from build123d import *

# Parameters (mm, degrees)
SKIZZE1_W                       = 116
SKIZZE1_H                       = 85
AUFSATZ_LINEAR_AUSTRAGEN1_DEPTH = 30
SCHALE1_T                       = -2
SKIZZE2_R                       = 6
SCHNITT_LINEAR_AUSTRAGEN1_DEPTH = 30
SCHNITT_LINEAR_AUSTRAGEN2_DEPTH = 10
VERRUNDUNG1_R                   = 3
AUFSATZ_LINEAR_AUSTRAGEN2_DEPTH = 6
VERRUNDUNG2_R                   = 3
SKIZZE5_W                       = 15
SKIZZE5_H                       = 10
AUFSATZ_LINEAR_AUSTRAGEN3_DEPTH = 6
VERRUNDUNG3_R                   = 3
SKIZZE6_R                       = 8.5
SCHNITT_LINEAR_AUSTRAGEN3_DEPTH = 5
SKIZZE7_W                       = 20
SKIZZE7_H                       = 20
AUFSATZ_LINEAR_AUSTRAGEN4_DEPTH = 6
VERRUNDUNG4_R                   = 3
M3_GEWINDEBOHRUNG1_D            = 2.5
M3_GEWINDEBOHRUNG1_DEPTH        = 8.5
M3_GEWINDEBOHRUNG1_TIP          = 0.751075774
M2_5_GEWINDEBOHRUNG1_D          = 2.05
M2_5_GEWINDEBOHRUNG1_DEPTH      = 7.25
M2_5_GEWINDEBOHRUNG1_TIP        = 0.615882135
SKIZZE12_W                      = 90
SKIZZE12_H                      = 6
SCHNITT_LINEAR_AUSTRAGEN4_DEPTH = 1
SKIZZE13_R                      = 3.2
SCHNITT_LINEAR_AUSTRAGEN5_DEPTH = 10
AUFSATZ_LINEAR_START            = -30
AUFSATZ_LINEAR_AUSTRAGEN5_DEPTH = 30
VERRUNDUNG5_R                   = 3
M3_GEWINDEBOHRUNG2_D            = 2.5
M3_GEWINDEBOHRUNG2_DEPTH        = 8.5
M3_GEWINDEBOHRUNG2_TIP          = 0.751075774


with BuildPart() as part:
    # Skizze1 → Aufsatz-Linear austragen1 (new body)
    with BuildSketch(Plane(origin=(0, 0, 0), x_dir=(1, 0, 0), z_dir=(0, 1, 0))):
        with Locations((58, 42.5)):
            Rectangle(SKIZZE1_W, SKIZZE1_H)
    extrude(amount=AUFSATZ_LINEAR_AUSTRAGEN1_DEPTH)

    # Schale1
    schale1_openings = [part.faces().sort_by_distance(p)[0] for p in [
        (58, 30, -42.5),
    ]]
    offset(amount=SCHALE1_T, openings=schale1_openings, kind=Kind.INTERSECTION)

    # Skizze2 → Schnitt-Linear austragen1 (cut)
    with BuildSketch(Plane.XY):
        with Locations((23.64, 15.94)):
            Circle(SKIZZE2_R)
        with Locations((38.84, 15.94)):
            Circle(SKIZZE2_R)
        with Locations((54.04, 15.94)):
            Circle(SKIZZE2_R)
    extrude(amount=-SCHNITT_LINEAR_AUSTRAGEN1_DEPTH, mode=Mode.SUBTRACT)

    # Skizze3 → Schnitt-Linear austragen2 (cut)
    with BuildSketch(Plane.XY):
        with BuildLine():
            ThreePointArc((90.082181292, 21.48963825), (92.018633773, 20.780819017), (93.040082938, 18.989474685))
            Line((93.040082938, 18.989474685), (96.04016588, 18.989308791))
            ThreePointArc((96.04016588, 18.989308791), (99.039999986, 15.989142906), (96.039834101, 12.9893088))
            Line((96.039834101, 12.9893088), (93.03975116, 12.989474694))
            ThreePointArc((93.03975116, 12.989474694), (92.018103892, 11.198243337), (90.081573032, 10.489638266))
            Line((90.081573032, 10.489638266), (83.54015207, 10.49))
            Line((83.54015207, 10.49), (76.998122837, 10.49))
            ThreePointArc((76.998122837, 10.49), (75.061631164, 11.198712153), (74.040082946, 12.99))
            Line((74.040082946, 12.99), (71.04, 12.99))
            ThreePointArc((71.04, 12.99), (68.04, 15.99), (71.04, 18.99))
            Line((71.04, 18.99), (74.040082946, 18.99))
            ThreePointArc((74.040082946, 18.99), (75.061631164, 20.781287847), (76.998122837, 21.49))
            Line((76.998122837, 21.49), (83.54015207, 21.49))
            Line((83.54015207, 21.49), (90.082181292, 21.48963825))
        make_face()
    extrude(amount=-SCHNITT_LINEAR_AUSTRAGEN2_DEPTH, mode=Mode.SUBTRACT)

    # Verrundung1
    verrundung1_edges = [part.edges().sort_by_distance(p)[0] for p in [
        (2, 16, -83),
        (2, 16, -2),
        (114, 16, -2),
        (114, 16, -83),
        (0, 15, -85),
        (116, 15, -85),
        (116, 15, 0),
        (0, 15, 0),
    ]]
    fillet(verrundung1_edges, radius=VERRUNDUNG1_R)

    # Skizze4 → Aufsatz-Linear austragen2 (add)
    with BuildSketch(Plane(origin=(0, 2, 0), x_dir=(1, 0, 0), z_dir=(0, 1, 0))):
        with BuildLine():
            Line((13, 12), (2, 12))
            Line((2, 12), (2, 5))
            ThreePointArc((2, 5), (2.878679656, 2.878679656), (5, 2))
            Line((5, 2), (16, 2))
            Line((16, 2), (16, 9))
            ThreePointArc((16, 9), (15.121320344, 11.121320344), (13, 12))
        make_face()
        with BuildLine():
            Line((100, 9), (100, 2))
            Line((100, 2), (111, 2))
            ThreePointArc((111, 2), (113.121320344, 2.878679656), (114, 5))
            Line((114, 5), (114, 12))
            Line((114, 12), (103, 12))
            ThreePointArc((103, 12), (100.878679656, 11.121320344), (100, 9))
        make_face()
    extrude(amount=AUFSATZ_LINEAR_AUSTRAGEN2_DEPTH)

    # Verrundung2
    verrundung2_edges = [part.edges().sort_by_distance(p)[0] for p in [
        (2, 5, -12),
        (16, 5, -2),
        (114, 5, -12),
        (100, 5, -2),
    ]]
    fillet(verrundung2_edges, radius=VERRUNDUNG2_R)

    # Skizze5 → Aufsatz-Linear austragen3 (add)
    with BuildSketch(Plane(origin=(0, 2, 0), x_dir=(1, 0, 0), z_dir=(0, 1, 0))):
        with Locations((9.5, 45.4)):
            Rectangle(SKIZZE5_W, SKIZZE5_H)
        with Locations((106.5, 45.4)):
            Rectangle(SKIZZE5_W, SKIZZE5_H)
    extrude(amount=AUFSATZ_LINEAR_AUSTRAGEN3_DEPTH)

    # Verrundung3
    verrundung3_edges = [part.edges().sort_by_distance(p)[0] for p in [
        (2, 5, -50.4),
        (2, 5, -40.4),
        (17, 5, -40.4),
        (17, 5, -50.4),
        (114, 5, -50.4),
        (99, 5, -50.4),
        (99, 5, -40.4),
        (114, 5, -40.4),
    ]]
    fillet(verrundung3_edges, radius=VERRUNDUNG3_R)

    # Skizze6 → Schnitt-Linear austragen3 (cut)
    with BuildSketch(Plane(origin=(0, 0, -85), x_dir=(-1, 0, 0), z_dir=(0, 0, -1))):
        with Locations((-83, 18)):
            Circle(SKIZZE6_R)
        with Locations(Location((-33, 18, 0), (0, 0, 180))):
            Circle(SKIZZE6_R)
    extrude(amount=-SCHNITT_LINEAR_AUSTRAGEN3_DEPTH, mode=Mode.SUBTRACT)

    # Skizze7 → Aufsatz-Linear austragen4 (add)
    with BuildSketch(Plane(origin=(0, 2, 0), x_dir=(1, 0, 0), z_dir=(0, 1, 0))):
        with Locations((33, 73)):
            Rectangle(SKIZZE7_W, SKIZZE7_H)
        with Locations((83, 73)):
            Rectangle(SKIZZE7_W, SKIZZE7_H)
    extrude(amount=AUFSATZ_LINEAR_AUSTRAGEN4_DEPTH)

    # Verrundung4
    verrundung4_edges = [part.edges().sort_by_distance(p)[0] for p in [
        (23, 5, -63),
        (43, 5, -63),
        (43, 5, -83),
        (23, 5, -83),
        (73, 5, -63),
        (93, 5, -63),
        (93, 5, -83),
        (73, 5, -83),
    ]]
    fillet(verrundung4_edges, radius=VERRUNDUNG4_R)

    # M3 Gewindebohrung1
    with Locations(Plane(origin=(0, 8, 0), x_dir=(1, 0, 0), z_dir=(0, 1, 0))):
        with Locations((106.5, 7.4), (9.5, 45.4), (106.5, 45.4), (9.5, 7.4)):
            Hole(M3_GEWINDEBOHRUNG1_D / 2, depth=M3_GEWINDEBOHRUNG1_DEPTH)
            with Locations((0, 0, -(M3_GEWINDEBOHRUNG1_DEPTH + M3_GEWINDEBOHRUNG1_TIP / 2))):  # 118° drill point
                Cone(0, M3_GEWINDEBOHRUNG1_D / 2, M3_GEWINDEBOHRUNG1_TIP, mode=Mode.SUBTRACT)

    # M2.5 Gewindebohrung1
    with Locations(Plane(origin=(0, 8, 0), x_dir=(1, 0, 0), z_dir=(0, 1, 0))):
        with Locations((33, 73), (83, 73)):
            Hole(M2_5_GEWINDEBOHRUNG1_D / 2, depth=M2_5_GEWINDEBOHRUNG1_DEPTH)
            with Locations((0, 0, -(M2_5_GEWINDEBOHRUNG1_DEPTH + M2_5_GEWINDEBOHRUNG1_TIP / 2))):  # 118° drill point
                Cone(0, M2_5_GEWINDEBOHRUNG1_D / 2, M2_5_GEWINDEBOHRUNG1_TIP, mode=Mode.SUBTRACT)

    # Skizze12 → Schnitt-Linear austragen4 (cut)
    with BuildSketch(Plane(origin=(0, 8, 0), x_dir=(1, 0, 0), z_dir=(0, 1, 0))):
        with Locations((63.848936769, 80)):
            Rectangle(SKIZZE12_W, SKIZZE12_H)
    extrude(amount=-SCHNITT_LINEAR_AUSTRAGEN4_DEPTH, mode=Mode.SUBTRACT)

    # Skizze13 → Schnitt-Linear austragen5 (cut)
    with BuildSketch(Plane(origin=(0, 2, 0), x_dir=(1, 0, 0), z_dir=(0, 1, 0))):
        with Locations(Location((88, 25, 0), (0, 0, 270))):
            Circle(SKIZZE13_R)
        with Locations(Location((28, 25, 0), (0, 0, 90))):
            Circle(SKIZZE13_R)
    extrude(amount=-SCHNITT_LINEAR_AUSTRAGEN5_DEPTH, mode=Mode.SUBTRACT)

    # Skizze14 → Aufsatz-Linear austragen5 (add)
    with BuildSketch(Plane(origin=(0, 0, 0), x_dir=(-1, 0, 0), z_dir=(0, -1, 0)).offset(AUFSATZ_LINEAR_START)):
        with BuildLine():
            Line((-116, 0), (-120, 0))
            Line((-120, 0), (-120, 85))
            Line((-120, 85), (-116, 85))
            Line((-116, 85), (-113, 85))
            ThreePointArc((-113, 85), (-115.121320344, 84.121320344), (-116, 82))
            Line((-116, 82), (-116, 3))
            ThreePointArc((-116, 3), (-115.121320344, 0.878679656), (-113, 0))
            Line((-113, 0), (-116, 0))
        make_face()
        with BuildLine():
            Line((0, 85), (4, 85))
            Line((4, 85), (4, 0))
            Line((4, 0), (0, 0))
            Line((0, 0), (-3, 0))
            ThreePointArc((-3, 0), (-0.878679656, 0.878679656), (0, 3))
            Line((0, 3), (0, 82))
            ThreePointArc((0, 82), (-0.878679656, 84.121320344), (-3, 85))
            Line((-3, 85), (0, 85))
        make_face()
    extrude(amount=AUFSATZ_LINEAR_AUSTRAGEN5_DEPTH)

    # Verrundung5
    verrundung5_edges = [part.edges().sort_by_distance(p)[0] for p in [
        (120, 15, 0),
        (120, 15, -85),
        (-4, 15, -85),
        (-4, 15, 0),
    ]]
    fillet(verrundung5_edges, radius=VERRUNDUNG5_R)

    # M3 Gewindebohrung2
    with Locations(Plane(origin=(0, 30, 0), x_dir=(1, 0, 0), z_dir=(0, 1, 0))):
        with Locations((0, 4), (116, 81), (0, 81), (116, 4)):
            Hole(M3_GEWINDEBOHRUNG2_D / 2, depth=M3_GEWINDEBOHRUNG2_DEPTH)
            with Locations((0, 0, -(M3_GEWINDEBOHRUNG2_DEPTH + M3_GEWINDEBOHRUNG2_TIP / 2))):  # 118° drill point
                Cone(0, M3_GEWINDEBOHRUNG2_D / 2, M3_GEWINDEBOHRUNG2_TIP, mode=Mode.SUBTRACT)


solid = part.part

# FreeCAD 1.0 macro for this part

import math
import FreeCAD as App
import Part
import Sketcher
Q = App.Units.Quantity


def edges_at(feature, points):
    """Names of the edges that pass closest to the given points."""
    edges = feature.Shape.Edges
    near = lambda p: min(range(len(edges)), key=lambda i: edges[i].distToShape(Part.Vertex(*p))[0])
    return sorted({f"Edge{near(p) + 1}" for p in points})


def faces_at(feature, points):
    """Names of the faces that lie closest to the given points."""
    faces = feature.Shape.Faces
    near = lambda p: min(range(len(faces)), key=lambda i: faces[i].distToShape(Part.Vertex(*p))[0])
    return sorted({f"Face{near(p) + 1}" for p in points})


def add_polygon(sketch, points):
    """Adds a closed chain of lines whose ends are joined by coincident constraints."""
    first, n = sketch.GeometryCount, len(points)
    for a, b in zip(points, points[1:] + points[:1]):
        sketch.addGeometry(Part.LineSegment(App.Vector(*a, 0), App.Vector(*b, 0)), False)
    for i in range(n):
        sketch.addConstraint(Sketcher.Constraint("Coincident", first + i, 2, first + (i + 1) % n, 1))

doc = App.newDocument("Part")
body = doc.addObject("PartDesign::Body", "Body")

sketch1 = body.newObject("Sketcher::SketchObject", "Sketch")
sketch1.AttachmentSupport = (doc.getObject("XZ_Plane"), [""])
sketch1.MapMode = "FlatFace"
add_polygon(sketch1, [(0, -85), (0, 0), (116, 0), (116, -85)])
sketch1.addConstraint([
    Sketcher.Constraint("Vertical", 0),
    Sketcher.Constraint("Horizontal", 1),
    Sketcher.Constraint("Vertical", 2),
    Sketcher.Constraint("Horizontal", 3),
    Sketcher.Constraint("Coincident", 0, 2, -1, 1),
    Sketcher.Constraint("DistanceX", 1, 1, 1, 2, Q("116 mm")),
    Sketcher.Constraint("DistanceY", 0, 1, 0, 2, Q("85 mm")),
])
pad1 = body.newObject("PartDesign::Pad", "Pad")
pad1.Profile = sketch1
pad1.Length = 30
pad1.Reversed = True
doc.recompute()

thickness = body.newObject("PartDesign::Thickness", "Thickness")
thickness.Base = (pad1, faces_at(pad1, [(58, 30, -42.5)]))
thickness.Value = 2
thickness.Reversed = True
thickness.Join = "Intersection"

sketch2 = body.newObject("Sketcher::SketchObject", "Sketch001")
sketch2.AttachmentSupport = (doc.getObject("XY_Plane"), [""])
sketch2.MapMode = "FlatFace"
sketch2.addGeometry([
    Part.Circle(App.Vector(24, 16, 0), App.Vector(0, 0, 1), 6),
    Part.Circle(App.Vector(39, 16, 0), App.Vector(0, 0, 1), 6),
    Part.Circle(App.Vector(54, 16, 0), App.Vector(0, 0, 1), 6),
], False)
sketch2.addConstraint([
    Sketcher.Constraint("Equal", 0, 1),
    Sketcher.Constraint("Equal", 1, 2),
    Sketcher.Constraint("Horizontal", 0, 3, 1, 3),
    Sketcher.Constraint("Horizontal", 1, 3, 2, 3),
    Sketcher.Constraint("Diameter", 0, Q("12 mm")),
    Sketcher.Constraint("DistanceX", 0, 3, 1, 3, Q("15.2 mm")),
    Sketcher.Constraint("DistanceX", 1, 3, 2, 3, Q("15.2 mm")),
    Sketcher.Constraint("DistanceX", -1, 1, 0, 3, Q("23.64 mm")),
    Sketcher.Constraint("DistanceY", -1, 1, 0, 3, Q("15.94 mm")),
])
pocket1 = body.newObject("PartDesign::Pocket", "Pocket")
pocket1.Profile = sketch2
pocket1.Length = 30

sketch3 = body.newObject("Sketcher::SketchObject", "Sketch002")
sketch3.AttachmentSupport = (doc.getObject("XY_Plane"), [""])
sketch3.MapMode = "FlatFace"
sketch3.addGeometry([
    Part.ArcOfCircle(Part.Circle(App.Vector(90.1, 18.5, 0), App.Vector(0, 0, 1), 3), math.radians(10), math.radians(90)),
    Part.LineSegment(App.Vector(90.1, 21.5, 0), App.Vector(83.5, 21.5, 0)),
    Part.LineSegment(App.Vector(83.5, 21.5, 0), App.Vector(77, 21.5, 0)),
    Part.ArcOfCircle(Part.Circle(App.Vector(77, 18.5, 0), App.Vector(0, 0, 1), 3), math.radians(90), math.radians(170)),
    Part.LineSegment(App.Vector(74, 19, 0), App.Vector(71, 19, 0)),
    Part.ArcOfCircle(Part.Circle(App.Vector(71, 16, 0), App.Vector(0, 0, 1), 3), math.radians(90), math.radians(270)),
    Part.LineSegment(App.Vector(71, 13, 0), App.Vector(74, 13, 0)),
    Part.ArcOfCircle(Part.Circle(App.Vector(77, 13.5, 0), App.Vector(0, 0, 1), 3), math.radians(-170), math.radians(-90)),
    Part.LineSegment(App.Vector(77, 10.5, 0), App.Vector(83.5, 10.5, 0)),
    Part.LineSegment(App.Vector(83.5, 10.5, 0), App.Vector(90.1, 10.5, 0)),
    Part.ArcOfCircle(Part.Circle(App.Vector(90.1, 13.5, 0), App.Vector(0, 0, 1), 3), math.radians(-90), math.radians(-10)),
    Part.LineSegment(App.Vector(93, 13, 0), App.Vector(96, 13, 0)),
    Part.ArcOfCircle(Part.Circle(App.Vector(96, 16, 0), App.Vector(0, 0, 1), 3), math.radians(-90), math.radians(90)),
    Part.LineSegment(App.Vector(96, 19, 0), App.Vector(93, 19, 0)),
], False)
sketch3.addConstraint([
    Sketcher.Constraint("Tangent", 0, 2, 1, 1),
    Sketcher.Constraint("Coincident", 1, 2, 2, 1),
    Sketcher.Constraint("Tangent", 2, 2, 3, 1),
    Sketcher.Constraint("Coincident", 3, 2, 4, 1),
    Sketcher.Constraint("Tangent", 4, 2, 5, 1),
    Sketcher.Constraint("Tangent", 5, 2, 6, 1),
    Sketcher.Constraint("Coincident", 6, 2, 7, 1),
    Sketcher.Constraint("Tangent", 7, 2, 8, 1),
    Sketcher.Constraint("Coincident", 8, 2, 9, 1),
    Sketcher.Constraint("Tangent", 9, 2, 10, 1),
    Sketcher.Constraint("Coincident", 10, 2, 11, 1),
    Sketcher.Constraint("Tangent", 11, 2, 12, 1),
    Sketcher.Constraint("Tangent", 12, 2, 13, 1),
    Sketcher.Constraint("Coincident", 13, 2, 0, 1),
    Sketcher.Constraint("Horizontal", 2),
    Sketcher.Constraint("Horizontal", 4),
    Sketcher.Constraint("Horizontal", 6),
    Sketcher.Constraint("Horizontal", 8),
    Sketcher.Constraint("Equal", 0, 3),
    Sketcher.Constraint("Equal", 3, 5),
    Sketcher.Constraint("Equal", 5, 7),
    Sketcher.Constraint("Equal", 7, 10),
    Sketcher.Constraint("Equal", 10, 12),
    Sketcher.Constraint("Parallel", 1, 9),
    Sketcher.Constraint("Parallel", 9, 11),
    Sketcher.Constraint("Parallel", 11, 13),
    Sketcher.Constraint("Vertical", 3, 3, 7, 3),
    Sketcher.Constraint("Vertical", 3, 2, 6, 2),
    Sketcher.Constraint("Vertical", 1, 2, 8, 2),
    Sketcher.Constraint("Equal", 11, 13),
    Sketcher.Constraint("Radius", 0, Q("3 mm")),
    Sketcher.Constraint("DistanceY", 7, 3, 3, 3, Q("5 mm")),
    Sketcher.Constraint("DistanceX", 5, 3, 12, 3, Q("25 mm")),
    Sketcher.Constraint("DistanceY", -1, 1, 3, 3, Q("18.49 mm")),
    Sketcher.Constraint("DistanceX", -1, 1, 5, 3, Q("71.04 mm")),
    Sketcher.Constraint("DistanceX", 2, 2, 2, 1, Q("6.542029 mm")),
    Sketcher.Constraint("DistanceX", 0, 2, 13, 2, Q("2.957902 mm")),
    Sketcher.Constraint("Distance", 1, Q("6.542029 mm")),
    Sketcher.Constraint("Distance", 9, Q("6.541421 mm")),
    Sketcher.Constraint("DistanceX", 4, 2, 4, 1, Q("3.000083 mm")),
])
pocket2 = body.newObject("PartDesign::Pocket", "Pocket001")
pocket2.Profile = sketch3
pocket2.Length = 10
doc.recompute()

fillet = body.newObject("PartDesign::Fillet", "Fillet")
fillet.Base = (pocket2, edges_at(pocket2, [
    (2, 16, -83),
    (2, 16, -2),
    (114, 16, -2),
    (114, 16, -83),
    (0, 15, -85),
    (116, 15, -85),
    (116, 15, 0),
    (0, 15, 0),
]))
fillet.Radius = 3

sketch4 = body.newObject("Sketcher::SketchObject", "Sketch003")
sketch4.AttachmentSupport = (doc.getObject("XZ_Plane"), [""])
sketch4.MapMode = "FlatFace"
sketch4.AttachmentOffset = App.Placement(App.Vector(0, 0, -2), App.Rotation())
sketch4.addGeometry([
    Part.LineSegment(App.Vector(13, -12, 0), App.Vector(2, -12, 0)),
    Part.LineSegment(App.Vector(2, -12, 0), App.Vector(2, -5, 0)),
    Part.ArcOfCircle(Part.Circle(App.Vector(5, -5, 0), App.Vector(0, 0, 1), 3), math.radians(90), math.radians(180)),
    Part.LineSegment(App.Vector(5, -2, 0), App.Vector(16, -2, 0)),
    Part.LineSegment(App.Vector(16, -2, 0), App.Vector(16, -9, 0)),
    Part.ArcOfCircle(Part.Circle(App.Vector(13, -9, 0), App.Vector(0, 0, 1), 3), math.radians(-90), math.radians(0)),
    Part.LineSegment(App.Vector(100, -9, 0), App.Vector(100, -2, 0)),
    Part.LineSegment(App.Vector(100, -2, 0), App.Vector(111, -2, 0)),
    Part.ArcOfCircle(Part.Circle(App.Vector(111, -5, 0), App.Vector(0, 0, 1), 3), math.radians(0), math.radians(90)),
    Part.LineSegment(App.Vector(114, -5, 0), App.Vector(114, -12, 0)),
    Part.LineSegment(App.Vector(114, -12, 0), App.Vector(103, -12, 0)),
    Part.ArcOfCircle(Part.Circle(App.Vector(103, -9, 0), App.Vector(0, 0, 1), 3), math.radians(180), math.radians(270)),
], False)
sketch4.addConstraint([
    Sketcher.Constraint("Coincident", 0, 2, 1, 1),
    Sketcher.Constraint("Tangent", 1, 2, 2, 2),
    Sketcher.Constraint("Tangent", 2, 1, 3, 1),
    Sketcher.Constraint("Coincident", 3, 2, 4, 1),
    Sketcher.Constraint("Tangent", 4, 2, 5, 2),
    Sketcher.Constraint("Tangent", 5, 1, 0, 1),
    Sketcher.Constraint("Coincident", 6, 2, 7, 1),
    Sketcher.Constraint("Tangent", 7, 2, 8, 2),
    Sketcher.Constraint("Tangent", 8, 1, 9, 1),
    Sketcher.Constraint("Coincident", 9, 2, 10, 1),
    Sketcher.Constraint("Tangent", 10, 2, 11, 2),
    Sketcher.Constraint("Tangent", 11, 1, 6, 1),
    Sketcher.Constraint("Horizontal", 0),
    Sketcher.Constraint("Vertical", 1),
    Sketcher.Constraint("Horizontal", 3),
    Sketcher.Constraint("Vertical", 4),
    Sketcher.Constraint("Vertical", 6),
    Sketcher.Constraint("Horizontal", 7),
    Sketcher.Constraint("Vertical", 9),
    Sketcher.Constraint("Horizontal", 10),
    Sketcher.Constraint("Equal", 2, 5),
    Sketcher.Constraint("Equal", 5, 8),
    Sketcher.Constraint("Equal", 8, 11),
    Sketcher.Constraint("Horizontal", 2, 3, 8, 3),
    Sketcher.Constraint("Horizontal", 5, 3, 11, 3),
    Sketcher.Constraint("Equal", 3, 7),
    Sketcher.Constraint("Radius", 2, Q("3 mm")),
    Sketcher.Constraint("DistanceX", 0, 2, 0, 1, Q("11 mm")),
    Sketcher.Constraint("DistanceY", 1, 1, 1, 2, Q("7 mm")),
    Sketcher.Constraint("DistanceX", -1, 1, 2, 3, Q("5 mm")),
    Sketcher.Constraint("DistanceY", 2, 3, -1, 1, Q("5 mm")),
    Sketcher.Constraint("DistanceX", -1, 1, 8, 3, Q("111 mm")),
])
pad2 = body.newObject("PartDesign::Pad", "Pad001")
pad2.Profile = sketch4
pad2.Length = 6
pad2.Reversed = True
doc.recompute()

fillet2 = body.newObject("PartDesign::Fillet", "Fillet001")
fillet2.Base = (pad2, edges_at(pad2, [
    (2, 5, -12),
    (16, 5, -2),
    (114, 5, -12),
    (100, 5, -2),
]))
fillet2.Radius = 3

sketch5 = body.newObject("Sketcher::SketchObject", "Sketch004")
sketch5.AttachmentSupport = (doc.getObject("XZ_Plane"), [""])
sketch5.MapMode = "FlatFace"
sketch5.AttachmentOffset = App.Placement(App.Vector(0, 0, -2), App.Rotation())
add_polygon(sketch5, [(2, -50), (2, -40), (17, -40), (17, -50)])
add_polygon(sketch5, [(99, -50), (99, -40), (114, -40), (114, -50)])
sketch5.addConstraint([
    Sketcher.Constraint("Vertical", 0),
    Sketcher.Constraint("Horizontal", 1),
    Sketcher.Constraint("Vertical", 2),
    Sketcher.Constraint("Horizontal", 3),
    Sketcher.Constraint("Vertical", 4),
    Sketcher.Constraint("Horizontal", 5),
    Sketcher.Constraint("Vertical", 6),
    Sketcher.Constraint("Horizontal", 7),
    Sketcher.Constraint("Horizontal", 1, 2, 4, 2),
    Sketcher.Constraint("Horizontal", 3, 2, 6, 2),
    Sketcher.Constraint("Equal", 3, 5),
    Sketcher.Constraint("DistanceX", 1, 1, 1, 2, Q("15 mm")),
    Sketcher.Constraint("DistanceY", 0, 1, 0, 2, Q("10 mm")),
    Sketcher.Constraint("DistanceX", -1, 1, 0, 2, Q("2 mm")),
    Sketcher.Constraint("DistanceX", -1, 1, 4, 2, Q("99 mm")),
    Sketcher.Constraint("DistanceY", 0, 2, -1, 1, Q("40.4 mm")),
])
pad3 = body.newObject("PartDesign::Pad", "Pad002")
pad3.Profile = sketch5
pad3.Length = 6
pad3.Reversed = True
doc.recompute()

fillet3 = body.newObject("PartDesign::Fillet", "Fillet002")
fillet3.Base = (pad3, edges_at(pad3, [
    (2, 5, -50.4),
    (2, 5, -40.4),
    (17, 5, -40.4),
    (17, 5, -50.4),
    (114, 5, -50.4),
    (99, 5, -50.4),
    (99, 5, -40.4),
    (114, 5, -40.4),
]))
fillet3.Radius = 3

sketch6 = body.newObject("Sketcher::SketchObject", "Sketch005")
sketch6.AttachmentSupport = (doc.getObject("XY_Plane"), [""])
sketch6.MapMode = "FlatFace"
sketch6.AttachmentOffset = App.Placement(App.Vector(0, 0, -85), App.Rotation())
sketch6.addGeometry([
    Part.Circle(App.Vector(83, 18, 0), App.Vector(0, 0, 1), 8),
    Part.Circle(App.Vector(33, 18, 0), App.Vector(0, 0, 1), 8),
], False)
sketch6.addConstraint([
    Sketcher.Constraint("Equal", 0, 1),
    Sketcher.Constraint("Horizontal", 0, 3, 1, 3),
    Sketcher.Constraint("Diameter", 0, Q("17 mm")),
    Sketcher.Constraint("DistanceX", -1, 1, 0, 3, Q("83 mm")),
    Sketcher.Constraint("DistanceY", -1, 1, 0, 3, Q("18 mm")),
    Sketcher.Constraint("DistanceX", -1, 1, 1, 3, Q("33 mm")),
])
pocket3 = body.newObject("PartDesign::Pocket", "Pocket002")
pocket3.Profile = sketch6
pocket3.Length = 5
pocket3.Reversed = True

sketch7 = body.newObject("Sketcher::SketchObject", "Sketch006")
sketch7.AttachmentSupport = (doc.getObject("XZ_Plane"), [""])
sketch7.MapMode = "FlatFace"
sketch7.AttachmentOffset = App.Placement(App.Vector(0, 0, -2), App.Rotation())
add_polygon(sketch7, [(23, -83), (23, -63), (43, -63), (43, -83)])
add_polygon(sketch7, [(73, -83), (73, -63), (93, -63), (93, -83)])
sketch7.addConstraint([
    Sketcher.Constraint("Vertical", 0),
    Sketcher.Constraint("Horizontal", 1),
    Sketcher.Constraint("Vertical", 2),
    Sketcher.Constraint("Horizontal", 3),
    Sketcher.Constraint("Vertical", 4),
    Sketcher.Constraint("Horizontal", 5),
    Sketcher.Constraint("Vertical", 6),
    Sketcher.Constraint("Horizontal", 7),
    Sketcher.Constraint("Horizontal", 1, 2, 4, 2),
    Sketcher.Constraint("Horizontal", 3, 2, 6, 2),
    Sketcher.Constraint("Equal", 3, 5),
    Sketcher.Constraint("Equal", 7, 0),
    Sketcher.Constraint("DistanceX", 1, 1, 1, 2, Q("20 mm")),
    Sketcher.Constraint("DistanceX", -1, 1, 0, 2, Q("23 mm")),
    Sketcher.Constraint("DistanceY", 0, 2, -1, 1, Q("63 mm")),
    Sketcher.Constraint("DistanceX", -1, 1, 4, 2, Q("73 mm")),
])
pad4 = body.newObject("PartDesign::Pad", "Pad003")
pad4.Profile = sketch7
pad4.Length = 6
pad4.Reversed = True
doc.recompute()

fillet4 = body.newObject("PartDesign::Fillet", "Fillet003")
fillet4.Base = (pad4, edges_at(pad4, [
    (23, 5, -63),
    (43, 5, -63),
    (43, 5, -83),
    (23, 5, -83),
    (73, 5, -63),
    (93, 5, -63),
    (93, 5, -83),
    (73, 5, -83),
]))
fillet4.Radius = 3

sketch8 = body.newObject("Sketcher::SketchObject", "Sketch007")
sketch8.AttachmentSupport = (doc.getObject("XZ_Plane"), [""])
sketch8.MapMode = "FlatFace"
sketch8.AttachmentOffset = App.Placement(App.Vector(0, 0, -8), App.Rotation())
sketch8.addGeometry([
    Part.Circle(App.Vector(106.5, -7.4, 0), App.Vector(0, 0, 1), 1.2),
    Part.Circle(App.Vector(9.5, -45.4, 0), App.Vector(0, 0, 1), 1.2),
    Part.Circle(App.Vector(106.5, -45.4, 0), App.Vector(0, 0, 1), 1.2),
    Part.Circle(App.Vector(9.5, -7.4, 0), App.Vector(0, 0, 1), 1.2),
], False)
sketch8.addConstraint([
    Sketcher.Constraint("Equal", 0, 1),
    Sketcher.Constraint("Equal", 1, 2),
    Sketcher.Constraint("Equal", 2, 3),
    Sketcher.Constraint("Horizontal", 1, 3, 2, 3),
    Sketcher.Constraint("Horizontal", 0, 3, 3, 3),
    Sketcher.Constraint("Vertical", 0, 3, 2, 3),
    Sketcher.Constraint("Vertical", 1, 3, 3, 3),
    Sketcher.Constraint("Diameter", 0, Q("2.5 mm")),
    Sketcher.Constraint("DistanceX", 1, 3, 0, 3, Q("97 mm")),
    Sketcher.Constraint("DistanceY", 1, 3, 0, 3, Q("38 mm")),
    Sketcher.Constraint("DistanceX", -1, 1, 0, 3, Q("106.5 mm")),
    Sketcher.Constraint("DistanceY", 0, 3, -1, 1, Q("7.4 mm")),
])
doc.recompute()
hole = body.newObject("PartDesign::Hole", "Hole")
hole.Profile = sketch8
hole.ThreadType = "None"
hole.Diameter = 2.5
hole.DepthType = "Dimension"
hole.Depth = 8.5
hole.DrillPoint = "Angled"
hole.DrillPointAngle = 118
hole.Reversed = True

sketch9 = body.newObject("Sketcher::SketchObject", "Sketch008")
sketch9.AttachmentSupport = (doc.getObject("XZ_Plane"), [""])
sketch9.MapMode = "FlatFace"
sketch9.AttachmentOffset = App.Placement(App.Vector(0, 0, -8), App.Rotation())
sketch9.addGeometry([
    Part.Circle(App.Vector(33, -73, 0), App.Vector(0, 0, 1), 1),
    Part.Circle(App.Vector(83, -73, 0), App.Vector(0, 0, 1), 1),
], False)
sketch9.addConstraint([
    Sketcher.Constraint("Equal", 0, 1),
    Sketcher.Constraint("Horizontal", 0, 3, 1, 3),
    Sketcher.Constraint("Diameter", 0, Q("2.05 mm")),
    Sketcher.Constraint("DistanceX", -1, 1, 0, 3, Q("33 mm")),
    Sketcher.Constraint("DistanceY", 0, 3, -1, 1, Q("73 mm")),
    Sketcher.Constraint("DistanceX", -1, 1, 1, 3, Q("83 mm")),
])
doc.recompute()
hole2 = body.newObject("PartDesign::Hole", "Hole001")
hole2.Profile = sketch9
hole2.ThreadType = "None"
hole2.Diameter = 2.05
hole2.DepthType = "Dimension"
hole2.Depth = 7.25
hole2.DrillPoint = "Angled"
hole2.DrillPointAngle = 118
hole2.Reversed = True

sketch10 = body.newObject("Sketcher::SketchObject", "Sketch009")
sketch10.AttachmentSupport = (doc.getObject("XZ_Plane"), [""])
sketch10.MapMode = "FlatFace"
sketch10.AttachmentOffset = App.Placement(App.Vector(0, 0, -8), App.Rotation())
add_polygon(sketch10, [(19, -83), (19, -77), (109, -77), (109, -83)])
sketch10.addConstraint([
    Sketcher.Constraint("Vertical", 0),
    Sketcher.Constraint("Horizontal", 1),
    Sketcher.Constraint("Vertical", 2),
    Sketcher.Constraint("Horizontal", 3),
    Sketcher.Constraint("DistanceX", 1, 1, 1, 2, Q("90 mm")),
    Sketcher.Constraint("DistanceY", 0, 1, 0, 2, Q("6 mm")),
    Sketcher.Constraint("DistanceY", 0, 2, -1, 1, Q("77 mm")),
    Sketcher.Constraint("DistanceX", -1, 1, 0, 2, Q("18.848937 mm")),
])
pocket4 = body.newObject("PartDesign::Pocket", "Pocket003")
pocket4.Profile = sketch10
pocket4.Length = 1
pocket4.Reversed = True

sketch11 = body.newObject("Sketcher::SketchObject", "Sketch010")
sketch11.AttachmentSupport = (doc.getObject("XZ_Plane"), [""])
sketch11.MapMode = "FlatFace"
sketch11.AttachmentOffset = App.Placement(App.Vector(0, 0, -2), App.Rotation())
sketch11.addGeometry([
    Part.Circle(App.Vector(88, -25, 0), App.Vector(0, 0, 1), 3.2),
    Part.Circle(App.Vector(28, -25, 0), App.Vector(0, 0, 1), 3.2),
], False)
sketch11.addConstraint([
    Sketcher.Constraint("Equal", 0, 1),
    Sketcher.Constraint("Horizontal", 0, 3, 1, 3),
    Sketcher.Constraint("Diameter", 0, Q("6.4 mm")),
    Sketcher.Constraint("DistanceX", -1, 1, 0, 3, Q("88 mm")),
    Sketcher.Constraint("DistanceY", 0, 3, -1, 1, Q("25 mm")),
    Sketcher.Constraint("DistanceX", -1, 1, 1, 3, Q("28 mm")),
])
pocket5 = body.newObject("PartDesign::Pocket", "Pocket004")
pocket5.Profile = sketch11
pocket5.Length = 10
pocket5.Reversed = True

sketch12 = body.newObject("Sketcher::SketchObject", "Sketch011")
sketch12.AttachmentSupport = (doc.getObject("XZ_Plane"), [""])
sketch12.MapMode = "FlatFace"
sketch12.AttachmentOffset = App.Placement(App.Vector(0, 0, -30), App.Rotation())
sketch12.addGeometry([
    Part.LineSegment(App.Vector(120, -85, 0), App.Vector(120, 0, 0)),
    Part.LineSegment(App.Vector(120, 0, 0), App.Vector(113, 0, 0)),
    Part.ArcOfCircle(Part.Circle(App.Vector(113, -3, 0), App.Vector(0, 0, 1), 3), math.radians(0), math.radians(90)),
    Part.LineSegment(App.Vector(116, -3, 0), App.Vector(116, -82, 0)),
    Part.ArcOfCircle(Part.Circle(App.Vector(113, -82, 0), App.Vector(0, 0, 1), 3), math.radians(-90), math.radians(0)),
    Part.LineSegment(App.Vector(113, -85, 0), App.Vector(120, -85, 0)),
    Part.LineSegment(App.Vector(-4, 0, 0), App.Vector(-4, -85, 0)),
    Part.LineSegment(App.Vector(-4, -85, 0), App.Vector(3, -85, 0)),
    Part.ArcOfCircle(Part.Circle(App.Vector(3, -82, 0), App.Vector(0, 0, 1), 3), math.radians(180), math.radians(270)),
    Part.LineSegment(App.Vector(0, -82, 0), App.Vector(0, -3, 0)),
    Part.ArcOfCircle(Part.Circle(App.Vector(3, -3, 0), App.Vector(0, 0, 1), 3), math.radians(90), math.radians(180)),
    Part.LineSegment(App.Vector(3, 0, 0), App.Vector(-4, 0, 0)),
], False)
sketch12.addConstraint([
    Sketcher.Constraint("Coincident", 0, 2, 1, 1),
    Sketcher.Constraint("Tangent", 1, 2, 2, 2),
    Sketcher.Constraint("Tangent", 2, 1, 3, 1),
    Sketcher.Constraint("Tangent", 3, 2, 4, 2),
    Sketcher.Constraint("Tangent", 4, 1, 5, 1),
    Sketcher.Constraint("Coincident", 5, 2, 0, 1),
    Sketcher.Constraint("Coincident", 6, 2, 7, 1),
    Sketcher.Constraint("Tangent", 7, 2, 8, 2),
    Sketcher.Constraint("Tangent", 8, 1, 9, 1),
    Sketcher.Constraint("Tangent", 9, 2, 10, 2),
    Sketcher.Constraint("Tangent", 10, 1, 11, 1),
    Sketcher.Constraint("Coincident", 11, 2, 6, 1),
    Sketcher.Constraint("Vertical", 0),
    Sketcher.Constraint("Horizontal", 1),
    Sketcher.Constraint("Vertical", 3),
    Sketcher.Constraint("Horizontal", 5),
    Sketcher.Constraint("Vertical", 6),
    Sketcher.Constraint("Horizontal", 7),
    Sketcher.Constraint("Vertical", 9),
    Sketcher.Constraint("Horizontal", 11),
    Sketcher.Constraint("Equal", 2, 4),
    Sketcher.Constraint("Equal", 4, 8),
    Sketcher.Constraint("Equal", 8, 10),
    Sketcher.Constraint("PointOnObject", 0, 2, -1),
    Sketcher.Constraint("PointOnObject", 8, 1, -2),
    Sketcher.Constraint("PointOnObject", 10, 1, -1),
    Sketcher.Constraint("Horizontal", 4, 3, 8, 3),
    Sketcher.Constraint("Equal", 5, 7),
    Sketcher.Constraint("Radius", 2, Q("3 mm")),
    Sketcher.Constraint("DistanceX", 1, 2, 1, 1, Q("7 mm")),
    Sketcher.Constraint("DistanceY", 0, 1, 0, 2, Q("85 mm")),
    Sketcher.Constraint("DistanceX", -1, 1, 2, 3, Q("113 mm")),
])
pad5 = body.newObject("PartDesign::Pad", "Pad004")
pad5.Profile = sketch12
pad5.Length = 30
doc.recompute()

fillet5 = body.newObject("PartDesign::Fillet", "Fillet004")
fillet5.Base = (pad5, edges_at(pad5, [
    (120, 15, 0),
    (120, 15, -85),
    (-4, 15, -85),
    (-4, 15, 0),
]))
fillet5.Radius = 3

sketch13 = body.newObject("Sketcher::SketchObject", "Sketch012")
sketch13.AttachmentSupport = (doc.getObject("XZ_Plane"), [""])
sketch13.MapMode = "FlatFace"
sketch13.AttachmentOffset = App.Placement(App.Vector(0, 0, -30), App.Rotation())
sketch13.addGeometry([
    Part.Circle(App.Vector(0, -4, 0), App.Vector(0, 0, 1), 1.2),
    Part.Circle(App.Vector(116, -81, 0), App.Vector(0, 0, 1), 1.2),
    Part.Circle(App.Vector(0, -81, 0), App.Vector(0, 0, 1), 1.2),
    Part.Circle(App.Vector(116, -4, 0), App.Vector(0, 0, 1), 1.2),
], False)
sketch13.addConstraint([
    Sketcher.Constraint("Equal", 0, 1),
    Sketcher.Constraint("Equal", 1, 2),
    Sketcher.Constraint("Equal", 2, 3),
    Sketcher.Constraint("PointOnObject", 0, 3, -2),
    Sketcher.Constraint("PointOnObject", 2, 3, -2),
    Sketcher.Constraint("Horizontal", 1, 3, 2, 3),
    Sketcher.Constraint("Horizontal", 0, 3, 3, 3),
    Sketcher.Constraint("Vertical", 1, 3, 3, 3),
    Sketcher.Constraint("Diameter", 0, Q("2.5 mm")),
    Sketcher.Constraint("DistanceY", 0, 3, -1, 1, Q("4 mm")),
    Sketcher.Constraint("DistanceX", -1, 1, 1, 3, Q("116 mm")),
    Sketcher.Constraint("DistanceY", 1, 3, -1, 1, Q("81 mm")),
])
doc.recompute()
hole3 = body.newObject("PartDesign::Hole", "Hole002")
hole3.Profile = sketch13
hole3.ThreadType = "None"
hole3.Diameter = 2.5
hole3.DepthType = "Dimension"
hole3.Depth = 8.5
hole3.DrillPoint = "Angled"
hole3.DrillPointAngle = 118
hole3.Reversed = True

doc.recompute()
